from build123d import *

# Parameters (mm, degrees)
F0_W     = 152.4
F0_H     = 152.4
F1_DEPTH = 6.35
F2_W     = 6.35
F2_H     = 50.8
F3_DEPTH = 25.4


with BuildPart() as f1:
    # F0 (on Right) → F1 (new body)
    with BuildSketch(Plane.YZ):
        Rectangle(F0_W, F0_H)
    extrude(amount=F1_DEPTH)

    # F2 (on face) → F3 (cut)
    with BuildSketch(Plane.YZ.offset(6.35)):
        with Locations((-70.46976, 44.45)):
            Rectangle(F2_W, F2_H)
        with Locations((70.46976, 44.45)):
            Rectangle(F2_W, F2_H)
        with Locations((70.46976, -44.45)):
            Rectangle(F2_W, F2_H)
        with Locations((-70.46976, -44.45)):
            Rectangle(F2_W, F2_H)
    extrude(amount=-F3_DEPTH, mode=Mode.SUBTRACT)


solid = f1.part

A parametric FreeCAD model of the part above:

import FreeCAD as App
import Part
import Sketcher
from FreeCAD import Vector
Q = App.Units.Quantity


def add_polygon(sketch, points):
    """Adds a closed chain of lines whose ends are joined by coincident constraints."""
    first, n = sketch.GeometryCount, len(points)
    for a, b in zip(points, points[1:] + points[:1]):
        sketch.addGeometry(Part.LineSegment(App.Vector(*a, 0), App.Vector(*b, 0)), False)
    for i in range(n):
        sketch.addConstraint(Sketcher.Constraint("Coincident", first + i, 2, first + (i + 1) % n, 1))

doc = App.newDocument("Part")
params = doc.addObject("Spreadsheet::Sheet", "Params")
for row, (alias, value) in enumerate([
    ("sketch1_width", "6 in"),
    ("pad1_length", "0.25 in"),
    ("sketch2_height", "2 in"),
    ("sketch2_width", "0.25 in"),
    ("pocket1_length", "1 in"),
], start=1):
    params.set(f"A{row}", alias)
    params.set(f"B{row}", "=" + value)
    params.setAlias(f"B{row}", alias)

body = doc.addObject("PartDesign::Body", "Body")

# Sketch on YZ plane
sketch1 = doc.addObject("Sketcher::SketchObject", "Sketch")
body.addObject(sketch1)
sketch1.AttachmentSupport = (doc.YZ_Plane, [""])
sketch1.MapMode = "FlatFace"
add_polygon(sketch1, [(-76, 76), (-76, -76), (76, -76), (76, 76)])  # lines 0-3
sketch1.addConstraint(Sketcher.Constraint("Vertical", 0))
sketch1.addConstraint(Sketcher.Constraint("Horizontal", 1))
sketch1.addConstraint(Sketcher.Constraint("Vertical", 2))
sketch1.addConstraint(Sketcher.Constraint("Horizontal", 3))
sketch1.addConstraint(Sketcher.Constraint("Symmetric", 0, 2, 2, 2, -1, 1))
sketch1.addConstraint(Sketcher.Constraint("Equal", 3, 0))
sketch1.addConstraint(Sketcher.Constraint("DistanceX", 1, 1, 1, 2, Q("6 in")))
sketch1.setExpression("Constraints[10]", "Params.sketch1_width")
pad1 = doc.addObject("PartDesign::Pad", "Pad")
body.addObject(pad1)
pad1.Profile = sketch1
pad1.setExpression("Length", "Params.pad1_length")

# Sketch on YZ plane
sketch2 = doc.addObject("Sketcher::SketchObject", "Sketch001")
body.addObject(sketch2)
sketch2.AttachmentSupport = (doc.YZ_Plane, [""])
sketch2.MapMode = "FlatFace"
sketch2.AttachmentOffset = App.Placement(Vector(0, 0, 0.25 * 25.4), App.Rotation())
add_polygon(sketch2, [(-74, 70), (-74, 19), (-67, 19), (-67, 70)])  # lines 0-3
add_polygon(sketch2, [(67, 70), (67, 19), (74, 19), (74, 70)])  # lines 4-7
add_polygon(sketch2, [(67, -19), (67, -70), (74, -70), (74, -19)])  # lines 8-11
add_polygon(sketch2, [(-74, -19), (-74, -70), (-67, -70), (-67, -19)])  # lines 12-15
sketch2.addConstraint(Sketcher.Constraint("Vertical", 0))
sketch2.addConstraint(Sketcher.Constraint("Horizontal", 1))
sketch2.addConstraint(Sketcher.Constraint("Vertical", 2))
sketch2.addConstraint(Sketcher.Constraint("Horizontal", 3))
sketch2.addConstraint(Sketcher.Constraint("Vertical", 4))
sketch2.addConstraint(Sketcher.Constraint("Horizontal", 5))
sketch2.addConstraint(Sketcher.Constraint("Vertical", 6))
sketch2.addConstraint(Sketcher.Constraint("Horizontal", 7))
sketch2.addConstraint(Sketcher.Constraint("Vertical", 8))
sketch2.addConstraint(Sketcher.Constraint("Horizontal", 9))
sketch2.addConstraint(Sketcher.Constraint("Vertical", 10))
sketch2.addConstraint(Sketcher.Constraint("Horizontal", 11))
sketch2.addConstraint(Sketcher.Constraint("Vertical", 12))
sketch2.addConstraint(Sketcher.Constraint("Horizontal", 13))
sketch2.addConstraint(Sketcher.Constraint("Vertical", 14))
sketch2.addConstraint(Sketcher.Constraint("Horizontal", 15))
sketch2.addConstraint(Sketcher.Constraint("Symmetric", 2, 2, 8, 2, -1, 1))
sketch2.addConstraint(Sketcher.Constraint("Symmetric", 0, 2, 10, 2, -1, 1))
sketch2.addConstraint(Sketcher.Constraint("Symmetric", 6, 2, 12, 2, -1, 1))
sketch2.addConstraint(Sketcher.Constraint("Symmetric", 4, 2, 14, 2, -1, 1))
sketch2.addConstraint(Sketcher.Constraint("Symmetric", 1, 2, 4, 2, -2))
sketch2.addConstraint(Sketcher.Constraint("Symmetric", 3, 2, 6, 2, -2))
sketch2.addConstraint(Sketcher.Constraint("DistanceY", 0, 2, 0, 1, Q("2 in")))
sketch2.addConstraint(Sketcher.Constraint("DistanceX", 1, 1, 1, 2, Q("0.25 in")))
sketch2.addConstraint(Sketcher.Constraint("DistanceY", 8, 2, 4, 2, Q("3.5 in")))
sketch2.addConstraint(Sketcher.Constraint("DistanceX", 0, 2, -1, 1, Q("2.8994 in")))
sketch2.setExpression("Constraints[38]", "Params.sketch2_height")
sketch2.setExpression("Constraints[39]", "Params.sketch2_width")
pocket1 = doc.addObject("PartDesign::Pocket", "Pocket")
body.addObject(pocket1)
pocket1.Profile = sketch2
pocket1.setExpression("Length", "Params.pocket1_length")

doc.recompute()
